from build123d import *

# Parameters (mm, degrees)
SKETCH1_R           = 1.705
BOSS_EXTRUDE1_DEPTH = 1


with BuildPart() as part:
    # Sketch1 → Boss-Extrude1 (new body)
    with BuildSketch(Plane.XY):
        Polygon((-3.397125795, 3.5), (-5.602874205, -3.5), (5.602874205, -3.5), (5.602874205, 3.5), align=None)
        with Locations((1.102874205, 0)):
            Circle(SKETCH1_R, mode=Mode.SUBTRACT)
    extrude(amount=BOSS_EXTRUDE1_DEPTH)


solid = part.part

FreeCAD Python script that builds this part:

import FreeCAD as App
import Part
import Sketcher
Q = App.Units.Quantity


def add_polygon(sketch, points):
    """Adds a closed chain of lines whose ends are joined by coincident constraints."""
    first, n = sketch.GeometryCount, len(points)
    for a, b in zip(points, points[1:] + points[:1]):
        sketch.addGeometry(Part.LineSegment(App.Vector(*a, 0), App.Vector(*b, 0)), False)
    for i in range(n):
        sketch.addConstraint(Sketcher.Constraint("Coincident", first + i, 2, first + (i + 1) % n, 1))

doc = App.newDocument("Part")
body = doc.addObject("PartDesign::Body", "Body")

sketch1 = body.newObject("Sketcher::SketchObject", "Sketch")
sketch1.AttachmentSupport = (doc.getObject("XY_Plane"), [""])
sketch1.MapMode = "FlatFace"
add_polygon(sketch1, [(-3.4, 3.5), (-5.6, -3.5), (5.6, -3.5), (5.6, 3.5)])
sketch1.addGeometry(Part.Circle(App.Vector(1.1, 0, 0), App.Vector(0, 0, 1), 1.7), False)
sketch1.addConstraint(Sketcher.Constraint("Horizontal", 1))
sketch1.addConstraint(Sketcher.Constraint("Vertical", 2))
sketch1.addConstraint(Sketcher.Constraint("Horizontal", 3))
sketch1.addConstraint(Sketcher.Constraint("Symmetric", 0, 2, 2, 2, -1, 1))
sketch1.addConstraint(Sketcher.Constraint("PointOnObject", 4, 3, -1))
sketch1.addConstraint(Sketcher.Constraint("Diameter", 4, 3.41))
sketch1.addConstraint(Sketcher.Constraint("DistanceX", 3, 2, 3, 1, 9.0))
sketch1.addConstraint(Sketcher.Constraint("DistanceY", 2, 1, 2, 2, 7.0))
sketch1.addConstraint(Sketcher.Constraint("Angle", 0, Q("-107.49 deg")))
sketch1.addConstraint(Sketcher.Constraint("DistanceX", 4, 3, 1, 2, 4.5))
pad1 = body.newObject("PartDesign::Pad", "Pad")
pad1.Profile = sketch1
pad1.Length = 1

doc.recompute()
